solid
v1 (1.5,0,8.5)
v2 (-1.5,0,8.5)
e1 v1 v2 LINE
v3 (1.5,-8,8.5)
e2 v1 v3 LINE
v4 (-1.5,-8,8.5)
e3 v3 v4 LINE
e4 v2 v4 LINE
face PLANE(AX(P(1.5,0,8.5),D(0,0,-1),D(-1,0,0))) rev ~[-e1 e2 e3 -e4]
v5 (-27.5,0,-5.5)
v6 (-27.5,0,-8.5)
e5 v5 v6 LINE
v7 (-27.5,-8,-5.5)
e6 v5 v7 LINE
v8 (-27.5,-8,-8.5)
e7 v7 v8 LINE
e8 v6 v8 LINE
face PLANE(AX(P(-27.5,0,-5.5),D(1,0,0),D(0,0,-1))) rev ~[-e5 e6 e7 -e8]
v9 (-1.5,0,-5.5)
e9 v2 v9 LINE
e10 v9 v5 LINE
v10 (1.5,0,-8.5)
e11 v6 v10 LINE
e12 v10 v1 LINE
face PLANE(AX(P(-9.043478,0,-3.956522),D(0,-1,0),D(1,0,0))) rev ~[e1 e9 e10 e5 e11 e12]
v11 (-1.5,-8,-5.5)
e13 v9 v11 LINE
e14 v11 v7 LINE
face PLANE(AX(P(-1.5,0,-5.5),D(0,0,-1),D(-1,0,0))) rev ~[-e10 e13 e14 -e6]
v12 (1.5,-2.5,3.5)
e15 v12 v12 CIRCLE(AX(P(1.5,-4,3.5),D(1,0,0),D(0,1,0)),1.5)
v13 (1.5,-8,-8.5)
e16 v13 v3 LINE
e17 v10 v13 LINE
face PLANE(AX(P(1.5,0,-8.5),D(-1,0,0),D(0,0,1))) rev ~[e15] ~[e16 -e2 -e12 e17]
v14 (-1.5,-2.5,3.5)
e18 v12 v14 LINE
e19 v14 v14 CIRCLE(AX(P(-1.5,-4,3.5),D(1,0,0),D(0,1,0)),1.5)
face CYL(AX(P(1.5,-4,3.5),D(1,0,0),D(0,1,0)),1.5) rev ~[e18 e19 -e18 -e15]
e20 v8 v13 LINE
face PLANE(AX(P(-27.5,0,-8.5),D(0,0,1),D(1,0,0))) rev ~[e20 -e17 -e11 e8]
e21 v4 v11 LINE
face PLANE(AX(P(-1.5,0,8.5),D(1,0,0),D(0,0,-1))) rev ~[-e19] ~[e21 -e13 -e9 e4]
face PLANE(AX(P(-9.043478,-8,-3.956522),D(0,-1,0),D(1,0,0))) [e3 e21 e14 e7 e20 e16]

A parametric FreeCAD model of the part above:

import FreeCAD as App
import Part
import Sketcher
from FreeCAD import Vector


def add_polygon(sketch, points):
    """Adds a closed chain of lines whose ends are joined by coincident constraints."""
    first, n = sketch.GeometryCount, len(points)
    for a, b in zip(points, points[1:] + points[:1]):
        sketch.addGeometry(Part.LineSegment(App.Vector(*a, 0), App.Vector(*b, 0)), False)
    for i in range(n):
        sketch.addConstraint(Sketcher.Constraint("Coincident", first + i, 2, first + (i + 1) % n, 1))

doc = App.newDocument("Part")
params = doc.addObject("Spreadsheet::Sheet", "Params")
for row, (alias, value) in enumerate([
    ("sketch1_width", "3 mm"),
    ("sketch1_width2", "26 mm"),
    ("sketch1_height", "14 mm"),
    ("pad1_length", "8 mm"),
    ("sketch2_diameter", "3 mm"),
    ("pocket1_length", "25 mm"),
], start=1):
    params.set(f"A{row}", alias)
    params.set(f"B{row}", "=" + value)
    params.setAlias(f"B{row}", alias)

body = doc.addObject("PartDesign::Body", "Body")

sketch1 = doc.addObject("Sketcher::SketchObject", "Sketch")
body.addObject(sketch1)
sketch1.AttachmentSupport = (doc.XZ_Plane, [""])
sketch1.MapMode = "FlatFace"
add_polygon(sketch1, [(1.5, 8.5), (-1.5, 8.5), (-1.5, -5.5), (-27.5, -5.5), (-27.5, -8.5), (1.5, -8.5)])
sketch1.addConstraint([
    Sketcher.Constraint("Horizontal", 0),
    Sketcher.Constraint("Vertical", 1),
    Sketcher.Constraint("Horizontal", 2),
    Sketcher.Constraint("Vertical", 3),
    Sketcher.Constraint("Horizontal", 4),
    Sketcher.Constraint("Vertical", 5),
    Sketcher.Constraint("Symmetric", 0, 2, 4, 2, -1, 1),
    Sketcher.Constraint("Equal", 0, 3),
    Sketcher.Constraint("DistanceX", 0, 2, 0, 1, 3.0),
    Sketcher.Constraint("DistanceX", 2, 2, 2, 1, 26.0),
    Sketcher.Constraint("DistanceY", 1, 2, 1, 1, 14.0),
])
sketch1.setExpression("Constraints[14]", "Params.sketch1_width")
sketch1.setExpression("Constraints[15]", "Params.sketch1_width2")
sketch1.setExpression("Constraints[16]", "Params.sketch1_height")
pad1 = doc.addObject("PartDesign::Pad", "Pad")
body.addObject(pad1)
pad1.Profile = sketch1
pad1.setExpression("Length", "Params.pad1_length")

sketch2 = doc.addObject("Sketcher::SketchObject", "Sketch001")
body.addObject(sketch2)
sketch2.AttachmentSupport = (doc.YZ_Plane, [""])
sketch2.MapMode = "FlatFace"
sketch2.AttachmentOffset = App.Placement(Vector(0, 0, 1.5), App.Rotation())
sketch2.addGeometry(Part.Circle(Vector(-4, 3.5, 0), Vector(0, 0, 1), 1.5), False)
sketch2.addConstraint([
    Sketcher.Constraint("Diameter", 0, 3.0),
    Sketcher.Constraint("DistanceX", 0, 3, -1, 1, 4.0),
    Sketcher.Constraint("DistanceY", -1, 1, 0, 3, 3.5),
])
sketch2.setExpression("Constraints[0]", "Params.sketch2_diameter")
pocket1 = doc.addObject("PartDesign::Pocket", "Pocket")
body.addObject(pocket1)
pocket1.Profile = sketch2
pocket1.setExpression("Length", "Params.pocket1_length")

doc.recompute()
